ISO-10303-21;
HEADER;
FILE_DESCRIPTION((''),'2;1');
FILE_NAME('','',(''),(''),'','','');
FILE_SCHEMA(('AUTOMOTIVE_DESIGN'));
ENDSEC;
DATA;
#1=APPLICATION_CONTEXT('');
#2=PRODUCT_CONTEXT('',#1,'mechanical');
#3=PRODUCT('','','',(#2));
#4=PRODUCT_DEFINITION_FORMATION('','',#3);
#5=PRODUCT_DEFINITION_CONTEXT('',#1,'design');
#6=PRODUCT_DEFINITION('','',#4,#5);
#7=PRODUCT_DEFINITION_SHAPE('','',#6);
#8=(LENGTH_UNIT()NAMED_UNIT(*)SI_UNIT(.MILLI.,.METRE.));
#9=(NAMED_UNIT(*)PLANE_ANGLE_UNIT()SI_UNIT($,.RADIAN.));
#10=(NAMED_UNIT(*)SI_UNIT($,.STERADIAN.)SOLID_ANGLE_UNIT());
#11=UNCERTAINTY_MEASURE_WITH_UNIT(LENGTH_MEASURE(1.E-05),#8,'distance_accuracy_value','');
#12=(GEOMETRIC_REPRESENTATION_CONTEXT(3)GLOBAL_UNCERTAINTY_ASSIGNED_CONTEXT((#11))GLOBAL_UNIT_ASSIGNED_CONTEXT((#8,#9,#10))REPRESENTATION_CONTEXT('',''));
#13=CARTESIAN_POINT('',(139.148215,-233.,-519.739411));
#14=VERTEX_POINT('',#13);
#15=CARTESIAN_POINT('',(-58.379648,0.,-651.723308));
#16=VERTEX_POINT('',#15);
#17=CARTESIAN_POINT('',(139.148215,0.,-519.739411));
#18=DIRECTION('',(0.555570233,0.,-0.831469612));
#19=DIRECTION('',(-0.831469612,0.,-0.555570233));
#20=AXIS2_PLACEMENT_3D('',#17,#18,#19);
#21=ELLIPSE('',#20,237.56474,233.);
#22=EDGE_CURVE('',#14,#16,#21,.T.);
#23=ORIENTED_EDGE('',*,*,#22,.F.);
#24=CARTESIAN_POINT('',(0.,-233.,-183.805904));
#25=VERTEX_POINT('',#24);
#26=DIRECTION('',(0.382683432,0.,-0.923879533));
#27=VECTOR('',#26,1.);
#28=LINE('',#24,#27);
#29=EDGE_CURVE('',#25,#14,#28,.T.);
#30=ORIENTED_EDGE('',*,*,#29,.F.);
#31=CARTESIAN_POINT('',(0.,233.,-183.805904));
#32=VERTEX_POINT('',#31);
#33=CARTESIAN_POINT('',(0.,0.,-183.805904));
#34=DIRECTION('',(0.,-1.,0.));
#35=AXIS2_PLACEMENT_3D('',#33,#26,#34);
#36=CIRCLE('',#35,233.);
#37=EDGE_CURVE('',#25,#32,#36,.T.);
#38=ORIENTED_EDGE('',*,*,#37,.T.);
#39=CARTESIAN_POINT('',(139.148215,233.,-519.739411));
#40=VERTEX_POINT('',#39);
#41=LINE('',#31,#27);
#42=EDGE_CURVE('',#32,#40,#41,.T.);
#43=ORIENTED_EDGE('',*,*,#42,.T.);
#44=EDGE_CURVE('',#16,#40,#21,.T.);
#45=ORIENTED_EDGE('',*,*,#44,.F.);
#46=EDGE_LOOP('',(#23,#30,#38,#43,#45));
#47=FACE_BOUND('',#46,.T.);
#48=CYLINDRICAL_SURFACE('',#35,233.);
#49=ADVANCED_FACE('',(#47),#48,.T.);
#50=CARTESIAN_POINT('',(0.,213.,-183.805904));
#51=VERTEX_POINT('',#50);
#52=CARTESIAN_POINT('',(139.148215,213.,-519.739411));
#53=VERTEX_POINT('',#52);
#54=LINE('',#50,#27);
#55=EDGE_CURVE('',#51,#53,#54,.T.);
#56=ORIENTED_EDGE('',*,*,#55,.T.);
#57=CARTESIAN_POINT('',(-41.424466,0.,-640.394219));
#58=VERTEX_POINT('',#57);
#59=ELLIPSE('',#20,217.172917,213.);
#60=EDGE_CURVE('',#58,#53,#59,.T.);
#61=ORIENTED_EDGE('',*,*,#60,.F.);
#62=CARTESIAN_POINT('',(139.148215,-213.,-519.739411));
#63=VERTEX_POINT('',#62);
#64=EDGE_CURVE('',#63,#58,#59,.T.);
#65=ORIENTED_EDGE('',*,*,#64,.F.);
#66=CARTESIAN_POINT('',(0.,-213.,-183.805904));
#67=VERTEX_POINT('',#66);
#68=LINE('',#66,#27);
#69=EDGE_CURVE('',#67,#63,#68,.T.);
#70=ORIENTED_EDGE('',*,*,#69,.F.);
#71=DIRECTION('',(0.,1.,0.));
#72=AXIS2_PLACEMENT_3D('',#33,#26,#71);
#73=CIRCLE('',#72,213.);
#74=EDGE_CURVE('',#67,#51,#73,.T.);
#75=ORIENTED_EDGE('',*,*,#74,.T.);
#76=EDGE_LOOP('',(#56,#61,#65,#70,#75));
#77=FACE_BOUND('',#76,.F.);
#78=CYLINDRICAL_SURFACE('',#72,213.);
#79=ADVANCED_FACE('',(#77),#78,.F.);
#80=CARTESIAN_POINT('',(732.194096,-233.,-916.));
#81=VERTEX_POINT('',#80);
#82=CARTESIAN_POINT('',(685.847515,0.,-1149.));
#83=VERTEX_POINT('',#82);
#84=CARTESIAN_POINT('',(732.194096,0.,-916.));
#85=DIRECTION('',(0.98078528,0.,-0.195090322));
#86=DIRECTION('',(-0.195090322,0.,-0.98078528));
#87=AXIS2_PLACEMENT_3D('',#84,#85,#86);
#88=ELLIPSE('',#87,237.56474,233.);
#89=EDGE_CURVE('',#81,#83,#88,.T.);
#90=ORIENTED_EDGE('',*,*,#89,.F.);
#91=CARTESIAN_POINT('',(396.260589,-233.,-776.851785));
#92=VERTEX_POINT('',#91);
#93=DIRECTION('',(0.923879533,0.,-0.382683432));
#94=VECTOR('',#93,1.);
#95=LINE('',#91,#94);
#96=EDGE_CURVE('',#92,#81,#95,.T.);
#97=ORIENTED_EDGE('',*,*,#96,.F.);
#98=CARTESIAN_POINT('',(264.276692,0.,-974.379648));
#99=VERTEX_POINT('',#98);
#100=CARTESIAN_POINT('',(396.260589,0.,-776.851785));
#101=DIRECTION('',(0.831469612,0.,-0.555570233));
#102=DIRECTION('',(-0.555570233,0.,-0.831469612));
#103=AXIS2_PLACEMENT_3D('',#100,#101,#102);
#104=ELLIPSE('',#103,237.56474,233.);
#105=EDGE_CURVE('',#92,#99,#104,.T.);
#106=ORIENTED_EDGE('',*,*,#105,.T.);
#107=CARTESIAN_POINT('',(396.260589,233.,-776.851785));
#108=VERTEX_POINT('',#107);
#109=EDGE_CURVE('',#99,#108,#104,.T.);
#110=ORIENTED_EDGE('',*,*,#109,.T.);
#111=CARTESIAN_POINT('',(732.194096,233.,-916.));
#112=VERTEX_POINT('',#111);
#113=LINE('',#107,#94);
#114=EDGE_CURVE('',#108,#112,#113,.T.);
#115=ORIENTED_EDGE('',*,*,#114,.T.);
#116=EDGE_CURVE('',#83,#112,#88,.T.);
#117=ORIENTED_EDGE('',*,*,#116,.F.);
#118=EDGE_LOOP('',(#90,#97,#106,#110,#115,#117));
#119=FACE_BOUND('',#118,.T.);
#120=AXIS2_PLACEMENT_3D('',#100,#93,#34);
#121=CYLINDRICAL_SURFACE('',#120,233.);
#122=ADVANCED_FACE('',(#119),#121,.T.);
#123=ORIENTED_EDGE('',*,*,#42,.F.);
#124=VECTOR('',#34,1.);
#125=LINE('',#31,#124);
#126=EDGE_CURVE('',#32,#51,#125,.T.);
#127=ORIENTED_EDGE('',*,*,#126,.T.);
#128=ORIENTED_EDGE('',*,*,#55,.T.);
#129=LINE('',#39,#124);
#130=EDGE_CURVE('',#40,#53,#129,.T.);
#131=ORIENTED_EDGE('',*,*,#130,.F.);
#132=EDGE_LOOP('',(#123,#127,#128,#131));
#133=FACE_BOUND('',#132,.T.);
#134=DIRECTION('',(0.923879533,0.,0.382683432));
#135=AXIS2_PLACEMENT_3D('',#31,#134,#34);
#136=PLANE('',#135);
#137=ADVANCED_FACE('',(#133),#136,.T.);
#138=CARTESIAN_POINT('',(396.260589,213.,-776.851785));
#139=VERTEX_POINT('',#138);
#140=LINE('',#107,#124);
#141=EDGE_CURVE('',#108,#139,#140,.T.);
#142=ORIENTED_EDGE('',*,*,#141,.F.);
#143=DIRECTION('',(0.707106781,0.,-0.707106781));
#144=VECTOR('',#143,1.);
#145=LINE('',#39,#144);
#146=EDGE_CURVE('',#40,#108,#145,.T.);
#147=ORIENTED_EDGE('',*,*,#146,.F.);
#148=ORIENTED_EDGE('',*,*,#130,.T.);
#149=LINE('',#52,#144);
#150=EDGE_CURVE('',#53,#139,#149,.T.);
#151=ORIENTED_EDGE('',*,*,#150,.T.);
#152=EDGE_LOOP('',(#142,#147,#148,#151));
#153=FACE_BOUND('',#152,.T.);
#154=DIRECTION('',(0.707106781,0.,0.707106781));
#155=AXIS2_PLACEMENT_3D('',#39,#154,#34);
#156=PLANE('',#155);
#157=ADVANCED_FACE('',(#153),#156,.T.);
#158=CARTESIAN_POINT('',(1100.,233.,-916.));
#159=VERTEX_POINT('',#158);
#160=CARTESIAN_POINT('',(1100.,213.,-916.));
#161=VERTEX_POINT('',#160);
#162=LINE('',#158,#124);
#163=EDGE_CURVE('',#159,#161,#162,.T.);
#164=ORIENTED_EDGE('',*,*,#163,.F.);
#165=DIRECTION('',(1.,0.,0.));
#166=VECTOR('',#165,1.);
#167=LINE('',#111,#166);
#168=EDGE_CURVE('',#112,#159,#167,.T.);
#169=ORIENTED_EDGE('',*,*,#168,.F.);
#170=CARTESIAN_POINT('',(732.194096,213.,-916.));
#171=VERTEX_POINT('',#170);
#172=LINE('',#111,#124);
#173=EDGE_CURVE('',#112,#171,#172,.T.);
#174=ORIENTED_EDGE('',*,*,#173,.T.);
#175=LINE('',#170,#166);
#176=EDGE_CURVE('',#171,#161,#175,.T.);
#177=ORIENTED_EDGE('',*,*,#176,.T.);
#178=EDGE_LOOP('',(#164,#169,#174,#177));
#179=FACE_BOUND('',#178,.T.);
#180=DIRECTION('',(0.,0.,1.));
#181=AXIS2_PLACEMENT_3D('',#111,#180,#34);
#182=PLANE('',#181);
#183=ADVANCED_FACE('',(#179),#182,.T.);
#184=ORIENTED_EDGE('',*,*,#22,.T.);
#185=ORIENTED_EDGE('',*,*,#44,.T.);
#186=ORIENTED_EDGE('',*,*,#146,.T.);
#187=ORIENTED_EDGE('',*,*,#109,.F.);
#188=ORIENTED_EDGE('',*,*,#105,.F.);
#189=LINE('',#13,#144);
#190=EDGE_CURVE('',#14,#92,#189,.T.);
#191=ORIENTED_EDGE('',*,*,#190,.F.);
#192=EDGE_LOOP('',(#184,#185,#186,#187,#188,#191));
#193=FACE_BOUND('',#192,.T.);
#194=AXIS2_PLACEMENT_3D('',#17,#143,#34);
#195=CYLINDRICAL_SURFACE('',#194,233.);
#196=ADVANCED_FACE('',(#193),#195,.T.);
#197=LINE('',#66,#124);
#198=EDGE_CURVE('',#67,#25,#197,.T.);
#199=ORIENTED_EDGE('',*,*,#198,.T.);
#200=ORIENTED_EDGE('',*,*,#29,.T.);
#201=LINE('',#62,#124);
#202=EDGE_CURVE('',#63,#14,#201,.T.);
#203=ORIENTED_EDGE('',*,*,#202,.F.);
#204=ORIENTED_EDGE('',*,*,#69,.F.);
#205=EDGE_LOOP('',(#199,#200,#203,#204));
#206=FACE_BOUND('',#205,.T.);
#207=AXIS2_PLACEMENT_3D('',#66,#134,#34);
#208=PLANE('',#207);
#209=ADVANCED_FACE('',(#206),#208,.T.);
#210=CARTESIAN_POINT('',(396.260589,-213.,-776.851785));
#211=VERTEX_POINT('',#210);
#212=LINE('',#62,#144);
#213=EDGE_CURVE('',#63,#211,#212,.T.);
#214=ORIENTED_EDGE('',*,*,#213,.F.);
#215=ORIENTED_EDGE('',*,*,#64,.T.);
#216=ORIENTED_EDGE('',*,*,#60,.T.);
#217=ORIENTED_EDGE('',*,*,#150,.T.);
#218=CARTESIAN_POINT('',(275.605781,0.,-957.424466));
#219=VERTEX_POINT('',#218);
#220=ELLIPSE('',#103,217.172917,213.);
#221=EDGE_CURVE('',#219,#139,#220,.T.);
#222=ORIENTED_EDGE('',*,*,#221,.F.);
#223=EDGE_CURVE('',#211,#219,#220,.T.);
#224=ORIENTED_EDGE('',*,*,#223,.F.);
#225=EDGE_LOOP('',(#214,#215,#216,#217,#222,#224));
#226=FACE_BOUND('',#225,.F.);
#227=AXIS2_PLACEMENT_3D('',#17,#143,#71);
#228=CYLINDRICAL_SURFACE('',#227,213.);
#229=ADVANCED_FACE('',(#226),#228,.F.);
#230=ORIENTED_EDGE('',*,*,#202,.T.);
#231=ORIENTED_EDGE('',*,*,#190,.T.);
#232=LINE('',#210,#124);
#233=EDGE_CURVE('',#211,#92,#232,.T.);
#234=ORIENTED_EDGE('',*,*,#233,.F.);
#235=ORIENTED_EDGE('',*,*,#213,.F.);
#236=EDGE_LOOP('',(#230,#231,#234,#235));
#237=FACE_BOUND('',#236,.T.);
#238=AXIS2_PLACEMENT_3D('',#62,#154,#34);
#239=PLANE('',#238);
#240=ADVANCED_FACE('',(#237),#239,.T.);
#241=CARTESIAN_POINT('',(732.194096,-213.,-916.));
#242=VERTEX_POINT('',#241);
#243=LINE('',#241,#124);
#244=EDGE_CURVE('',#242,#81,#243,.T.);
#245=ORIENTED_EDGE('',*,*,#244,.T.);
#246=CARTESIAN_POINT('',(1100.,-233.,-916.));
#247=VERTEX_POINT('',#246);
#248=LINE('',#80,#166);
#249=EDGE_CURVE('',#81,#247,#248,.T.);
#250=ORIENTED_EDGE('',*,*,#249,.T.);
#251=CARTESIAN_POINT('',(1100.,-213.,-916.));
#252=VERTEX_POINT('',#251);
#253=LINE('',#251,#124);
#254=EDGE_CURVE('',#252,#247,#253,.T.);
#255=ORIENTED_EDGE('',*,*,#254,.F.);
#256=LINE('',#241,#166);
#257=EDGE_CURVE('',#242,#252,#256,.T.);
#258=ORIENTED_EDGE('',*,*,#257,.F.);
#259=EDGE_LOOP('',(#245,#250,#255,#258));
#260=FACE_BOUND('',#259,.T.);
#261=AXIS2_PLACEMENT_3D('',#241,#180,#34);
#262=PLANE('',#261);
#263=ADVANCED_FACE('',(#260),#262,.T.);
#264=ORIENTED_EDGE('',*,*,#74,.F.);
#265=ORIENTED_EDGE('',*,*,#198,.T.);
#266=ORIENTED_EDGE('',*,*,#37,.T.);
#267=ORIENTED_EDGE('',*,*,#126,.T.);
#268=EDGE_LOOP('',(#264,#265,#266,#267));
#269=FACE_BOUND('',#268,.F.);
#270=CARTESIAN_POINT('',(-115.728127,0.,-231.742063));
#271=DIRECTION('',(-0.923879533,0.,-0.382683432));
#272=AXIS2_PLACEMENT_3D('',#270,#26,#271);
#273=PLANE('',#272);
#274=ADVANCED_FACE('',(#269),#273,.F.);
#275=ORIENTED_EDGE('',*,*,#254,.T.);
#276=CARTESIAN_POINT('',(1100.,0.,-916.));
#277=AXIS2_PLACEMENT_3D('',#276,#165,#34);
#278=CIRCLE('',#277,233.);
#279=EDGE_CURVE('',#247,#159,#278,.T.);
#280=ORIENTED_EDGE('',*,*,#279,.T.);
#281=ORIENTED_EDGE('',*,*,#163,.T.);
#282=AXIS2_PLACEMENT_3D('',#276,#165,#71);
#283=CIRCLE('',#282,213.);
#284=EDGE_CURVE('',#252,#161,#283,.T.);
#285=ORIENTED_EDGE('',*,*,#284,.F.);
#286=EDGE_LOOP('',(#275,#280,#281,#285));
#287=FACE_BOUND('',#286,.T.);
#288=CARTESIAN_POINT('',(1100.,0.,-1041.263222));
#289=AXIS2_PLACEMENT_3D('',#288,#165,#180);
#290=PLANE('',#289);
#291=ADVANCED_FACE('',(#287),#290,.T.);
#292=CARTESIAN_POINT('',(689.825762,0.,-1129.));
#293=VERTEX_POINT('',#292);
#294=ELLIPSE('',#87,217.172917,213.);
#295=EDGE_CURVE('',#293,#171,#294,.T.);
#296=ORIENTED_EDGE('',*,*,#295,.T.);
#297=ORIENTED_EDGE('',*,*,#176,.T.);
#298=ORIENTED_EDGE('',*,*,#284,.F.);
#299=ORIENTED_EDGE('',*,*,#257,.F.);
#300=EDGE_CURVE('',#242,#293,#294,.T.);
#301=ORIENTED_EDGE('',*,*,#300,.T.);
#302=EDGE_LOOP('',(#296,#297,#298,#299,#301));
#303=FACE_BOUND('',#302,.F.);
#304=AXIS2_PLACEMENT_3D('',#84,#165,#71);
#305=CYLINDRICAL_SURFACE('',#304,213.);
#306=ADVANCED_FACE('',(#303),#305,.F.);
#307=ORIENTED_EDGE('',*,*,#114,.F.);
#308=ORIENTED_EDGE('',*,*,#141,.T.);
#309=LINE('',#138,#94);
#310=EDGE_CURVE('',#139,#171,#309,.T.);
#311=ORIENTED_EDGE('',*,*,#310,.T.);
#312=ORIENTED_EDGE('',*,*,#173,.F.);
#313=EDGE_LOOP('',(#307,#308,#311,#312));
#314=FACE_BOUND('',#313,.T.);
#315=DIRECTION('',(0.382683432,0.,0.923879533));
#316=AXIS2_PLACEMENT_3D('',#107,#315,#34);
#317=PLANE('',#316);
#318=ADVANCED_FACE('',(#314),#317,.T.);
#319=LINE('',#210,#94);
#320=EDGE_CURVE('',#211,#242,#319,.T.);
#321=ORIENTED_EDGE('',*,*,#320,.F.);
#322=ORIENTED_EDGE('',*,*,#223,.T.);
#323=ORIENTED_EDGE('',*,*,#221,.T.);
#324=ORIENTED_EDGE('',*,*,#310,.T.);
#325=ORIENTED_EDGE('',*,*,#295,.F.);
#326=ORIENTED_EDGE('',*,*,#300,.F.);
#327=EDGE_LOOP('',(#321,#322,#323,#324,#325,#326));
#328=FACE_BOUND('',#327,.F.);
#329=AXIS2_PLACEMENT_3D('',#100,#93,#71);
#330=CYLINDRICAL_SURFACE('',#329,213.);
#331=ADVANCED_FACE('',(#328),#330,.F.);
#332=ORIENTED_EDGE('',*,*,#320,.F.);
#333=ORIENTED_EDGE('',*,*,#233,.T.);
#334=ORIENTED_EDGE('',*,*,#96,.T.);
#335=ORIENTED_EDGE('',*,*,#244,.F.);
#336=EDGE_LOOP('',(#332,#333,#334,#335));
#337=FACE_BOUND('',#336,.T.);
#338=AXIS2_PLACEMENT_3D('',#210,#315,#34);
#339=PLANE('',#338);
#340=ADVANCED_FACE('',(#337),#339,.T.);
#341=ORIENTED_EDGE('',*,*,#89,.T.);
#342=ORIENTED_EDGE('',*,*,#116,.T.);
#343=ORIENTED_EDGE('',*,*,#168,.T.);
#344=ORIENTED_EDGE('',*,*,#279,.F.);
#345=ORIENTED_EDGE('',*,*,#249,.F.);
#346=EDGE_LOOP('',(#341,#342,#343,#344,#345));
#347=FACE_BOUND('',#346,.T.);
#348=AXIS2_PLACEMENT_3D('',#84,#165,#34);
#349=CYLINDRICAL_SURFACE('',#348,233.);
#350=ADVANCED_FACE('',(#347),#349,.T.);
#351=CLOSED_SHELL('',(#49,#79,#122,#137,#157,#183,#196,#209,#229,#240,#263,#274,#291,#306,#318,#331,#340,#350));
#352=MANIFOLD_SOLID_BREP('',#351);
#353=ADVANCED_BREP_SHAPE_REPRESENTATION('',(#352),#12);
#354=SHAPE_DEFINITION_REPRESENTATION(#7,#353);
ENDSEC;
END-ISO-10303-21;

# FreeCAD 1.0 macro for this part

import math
import FreeCAD as App
import Part
import Sketcher
from FreeCAD import Vector
Q = App.Units.Quantity

doc = App.newDocument("Part")
body = doc.addObject("PartDesign::Body", "Body")

# Sketch on YZ plane
sketch1 = body.newObject("Sketcher::SketchObject", "Sketch")
sketch1.AttachmentSupport = (doc.getObject("YZ_Plane"), [""])
sketch1.MapMode = "FlatFace"
sketch1.AttachmentOffset = App.Placement(Vector(0, 0, 1100), App.Rotation())
sketch1.addGeometry(Part.ArcOfCircle(Part.Circle(Vector(0, -916, 0), Vector(0, 0, 1), 213), math.radians(180), math.radians(360)), False)
sketch1.addGeometry(Part.LineSegment(Vector(-213, -916, 0), Vector(-233, -916, 0)), False)
sketch1.addGeometry(Part.ArcOfCircle(Part.Circle(Vector(0, -916, 0), Vector(0, 0, 1), 233), math.radians(180), math.radians(360)), False)
sketch1.addGeometry(Part.LineSegment(Vector(233, -916, 0), Vector(213, -916, 0)), False)
sketch1.addConstraint(Sketcher.Constraint("Coincident", 0, 1, 1, 1))
sketch1.addConstraint(Sketcher.Constraint("Coincident", 1, 2, 2, 1))
sketch1.addConstraint(Sketcher.Constraint("Coincident", 2, 2, 3, 1))
sketch1.addConstraint(Sketcher.Constraint("Coincident", 3, 2, 0, 2))
sketch1.addConstraint(Sketcher.Constraint("Horizontal", 1))
sketch1.addConstraint(Sketcher.Constraint("Horizontal", 3))
sketch1.addConstraint(Sketcher.Constraint("Coincident", 2, 3, 0, 3))
sketch1.addConstraint(Sketcher.Constraint("Symmetric", 1, 2, 2, 2, -2))
sketch1.addConstraint(Sketcher.Constraint("Horizontal", 2, 3, 0, 1))
sketch1.addConstraint(Sketcher.Constraint("Radius", 0, Q("213 mm")))
sketch1.addConstraint(Sketcher.Constraint("Radius", 2, Q("233 mm")))
sketch1.addConstraint(Sketcher.Constraint("DistanceY", 0, 3, -1, 1, Q("916 mm")))

# Sketch on XZ plane
sketch2 = body.newObject("Sketcher::SketchObject", "Sketch001")
sketch2.AttachmentSupport = (doc.getObject("XZ_Plane"), [""])
sketch2.MapMode = "FlatFace"
sketch2.addGeometry(Part.LineSegment(Vector(0, -184, 0), Vector(139, -520, 0)), False)
sketch2.addGeometry(Part.LineSegment(Vector(139, -520, 0), Vector(396, -777, 0)), False)
sketch2.addGeometry(Part.LineSegment(Vector(396, -777, 0), Vector(732, -916, 0)), False)
sketch2.addGeometry(Part.LineSegment(Vector(732, -916, 0), Vector(1100, -916, 0)), False)
sketch2.addConstraint(Sketcher.Constraint("Coincident", 0, 2, 1, 1))
sketch2.addConstraint(Sketcher.Constraint("Coincident", 1, 2, 2, 1))
sketch2.addConstraint(Sketcher.Constraint("Coincident", 2, 2, 3, 1))
sketch2.addConstraint(Sketcher.Constraint("Horizontal", 3))
sketch2.addConstraint(Sketcher.Constraint("PointOnObject", 0, 1, -2))
sketch2.addConstraint(Sketcher.Constraint("Equal", 0, 1))
sketch2.addConstraint(Sketcher.Constraint("Equal", 1, 2))
sketch2.addConstraint(Sketcher.Constraint("Angle", 1, Q("-45 deg")))
sketch2.addConstraint(Sketcher.Constraint("DistanceY", 2, 2, -1, 1, Q("916 mm")))
sketch2.addConstraint(Sketcher.Constraint("DistanceX", -1, 1, 3, 2, Q("1100 mm")))
sketch2.addConstraint(Sketcher.Constraint("Angle", 0, Q("-67.5 deg")))
sketch2.addConstraint(Sketcher.Constraint("Angle", 2, Q("-22.5 deg")))
sketch2.addConstraint(Sketcher.Constraint("DistanceX", 3, 1, 3, 2, Q("367.805904 mm")))
doc.recompute()

additivepipe = body.newObject("PartDesign::AdditivePipe", "AdditivePipe")
additivepipe.Profile = sketch1
additivepipe.Spine = (sketch2, ["Edge1", "Edge2", "Edge3", "Edge4"])
additivepipe.Transition = "Right corner"

doc.recompute()
